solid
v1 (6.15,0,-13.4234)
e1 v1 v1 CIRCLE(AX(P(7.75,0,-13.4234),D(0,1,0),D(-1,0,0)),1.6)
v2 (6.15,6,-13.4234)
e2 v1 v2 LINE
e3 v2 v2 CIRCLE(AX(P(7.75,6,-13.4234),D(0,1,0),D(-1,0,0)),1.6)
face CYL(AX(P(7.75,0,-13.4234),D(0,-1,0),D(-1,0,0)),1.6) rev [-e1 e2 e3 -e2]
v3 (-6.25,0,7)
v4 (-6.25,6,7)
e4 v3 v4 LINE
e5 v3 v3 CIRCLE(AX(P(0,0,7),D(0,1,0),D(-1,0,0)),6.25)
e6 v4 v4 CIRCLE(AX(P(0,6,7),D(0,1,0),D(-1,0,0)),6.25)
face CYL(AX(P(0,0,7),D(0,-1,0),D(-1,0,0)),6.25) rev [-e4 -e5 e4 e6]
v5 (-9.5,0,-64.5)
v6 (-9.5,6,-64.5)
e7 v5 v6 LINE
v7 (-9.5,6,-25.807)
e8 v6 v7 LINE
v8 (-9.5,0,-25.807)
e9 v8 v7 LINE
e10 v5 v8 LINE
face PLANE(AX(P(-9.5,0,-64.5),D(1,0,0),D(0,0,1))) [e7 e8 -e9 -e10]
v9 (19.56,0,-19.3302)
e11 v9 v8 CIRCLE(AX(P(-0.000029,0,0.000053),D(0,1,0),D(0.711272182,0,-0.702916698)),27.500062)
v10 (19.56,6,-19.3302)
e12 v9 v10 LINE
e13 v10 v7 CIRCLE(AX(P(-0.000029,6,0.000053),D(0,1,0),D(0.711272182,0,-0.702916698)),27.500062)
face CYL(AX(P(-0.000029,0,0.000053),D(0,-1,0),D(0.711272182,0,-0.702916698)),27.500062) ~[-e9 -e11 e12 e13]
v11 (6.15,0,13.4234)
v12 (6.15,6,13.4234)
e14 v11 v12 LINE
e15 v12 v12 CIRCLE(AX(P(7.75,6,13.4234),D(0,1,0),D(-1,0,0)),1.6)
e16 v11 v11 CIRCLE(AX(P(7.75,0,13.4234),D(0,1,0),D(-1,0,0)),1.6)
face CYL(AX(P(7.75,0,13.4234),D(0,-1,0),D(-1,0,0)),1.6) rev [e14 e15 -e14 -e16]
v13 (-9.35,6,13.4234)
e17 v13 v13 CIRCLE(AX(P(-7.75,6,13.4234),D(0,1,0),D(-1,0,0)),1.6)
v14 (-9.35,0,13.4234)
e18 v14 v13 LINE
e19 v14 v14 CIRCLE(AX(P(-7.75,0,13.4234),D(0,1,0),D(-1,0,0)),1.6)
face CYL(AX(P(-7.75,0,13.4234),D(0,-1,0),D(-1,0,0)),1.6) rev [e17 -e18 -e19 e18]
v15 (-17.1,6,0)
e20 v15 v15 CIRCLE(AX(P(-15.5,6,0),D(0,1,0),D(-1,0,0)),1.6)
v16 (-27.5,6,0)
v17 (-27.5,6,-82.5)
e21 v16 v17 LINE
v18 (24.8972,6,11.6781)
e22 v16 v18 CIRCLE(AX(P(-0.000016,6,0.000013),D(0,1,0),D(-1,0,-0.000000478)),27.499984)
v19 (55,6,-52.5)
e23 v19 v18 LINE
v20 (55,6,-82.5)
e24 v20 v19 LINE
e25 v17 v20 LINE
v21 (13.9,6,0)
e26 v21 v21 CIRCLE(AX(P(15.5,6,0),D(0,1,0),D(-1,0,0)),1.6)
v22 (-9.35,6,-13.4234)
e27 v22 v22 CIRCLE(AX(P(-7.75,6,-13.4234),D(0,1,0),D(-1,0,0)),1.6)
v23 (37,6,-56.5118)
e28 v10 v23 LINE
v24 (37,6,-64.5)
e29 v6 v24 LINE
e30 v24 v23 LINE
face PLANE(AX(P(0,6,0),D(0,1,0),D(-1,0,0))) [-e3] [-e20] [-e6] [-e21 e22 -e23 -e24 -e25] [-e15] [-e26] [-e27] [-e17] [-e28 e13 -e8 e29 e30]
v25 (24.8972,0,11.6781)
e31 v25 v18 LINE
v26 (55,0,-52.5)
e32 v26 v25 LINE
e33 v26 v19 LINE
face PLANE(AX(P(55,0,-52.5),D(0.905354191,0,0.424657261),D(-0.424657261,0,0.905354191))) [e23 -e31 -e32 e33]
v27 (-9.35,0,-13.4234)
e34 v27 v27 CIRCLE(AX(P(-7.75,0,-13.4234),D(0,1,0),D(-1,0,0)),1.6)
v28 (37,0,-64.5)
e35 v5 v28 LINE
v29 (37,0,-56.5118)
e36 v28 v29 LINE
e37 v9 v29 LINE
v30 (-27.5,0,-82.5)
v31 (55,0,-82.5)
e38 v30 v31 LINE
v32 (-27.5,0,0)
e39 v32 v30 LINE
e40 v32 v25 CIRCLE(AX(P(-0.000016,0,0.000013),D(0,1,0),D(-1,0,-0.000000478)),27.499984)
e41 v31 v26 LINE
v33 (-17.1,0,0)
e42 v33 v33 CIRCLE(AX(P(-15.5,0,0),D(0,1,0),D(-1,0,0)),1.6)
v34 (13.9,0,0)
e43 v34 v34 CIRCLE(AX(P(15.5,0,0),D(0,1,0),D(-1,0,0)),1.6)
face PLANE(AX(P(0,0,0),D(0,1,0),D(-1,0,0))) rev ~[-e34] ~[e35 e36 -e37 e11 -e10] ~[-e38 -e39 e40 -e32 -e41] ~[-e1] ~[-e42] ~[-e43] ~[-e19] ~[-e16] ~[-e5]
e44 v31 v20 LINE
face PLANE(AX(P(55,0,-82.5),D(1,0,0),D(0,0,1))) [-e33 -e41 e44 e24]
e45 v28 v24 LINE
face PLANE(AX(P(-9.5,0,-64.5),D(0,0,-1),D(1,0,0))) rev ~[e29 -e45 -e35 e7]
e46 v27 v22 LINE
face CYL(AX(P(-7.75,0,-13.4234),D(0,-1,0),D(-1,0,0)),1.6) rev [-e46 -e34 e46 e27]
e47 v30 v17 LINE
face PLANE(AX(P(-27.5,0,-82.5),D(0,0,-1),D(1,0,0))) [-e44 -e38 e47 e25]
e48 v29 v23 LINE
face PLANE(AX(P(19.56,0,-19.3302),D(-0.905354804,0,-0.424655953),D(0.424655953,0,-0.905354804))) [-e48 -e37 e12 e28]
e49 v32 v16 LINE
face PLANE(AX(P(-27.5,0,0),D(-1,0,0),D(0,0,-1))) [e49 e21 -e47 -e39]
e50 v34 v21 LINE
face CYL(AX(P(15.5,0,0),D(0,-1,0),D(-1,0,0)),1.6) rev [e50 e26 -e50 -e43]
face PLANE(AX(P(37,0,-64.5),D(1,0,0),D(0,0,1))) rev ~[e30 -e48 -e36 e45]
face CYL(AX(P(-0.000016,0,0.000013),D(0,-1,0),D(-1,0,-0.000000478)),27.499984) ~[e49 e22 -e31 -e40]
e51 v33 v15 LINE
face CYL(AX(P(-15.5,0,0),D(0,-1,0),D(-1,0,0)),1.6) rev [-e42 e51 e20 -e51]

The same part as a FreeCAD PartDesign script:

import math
import FreeCAD as App
import Part
import Sketcher

doc = App.newDocument("Part")
params = doc.addObject("Spreadsheet::Sheet", "Params")
for row, (alias, value) in enumerate([
    ("sketch1_diameter", "3.2 mm"),
    ("sketch1_diameter2", "12.5 mm"),
    ("sketch1_radius", "27.5 mm"),
    ("sketch1_height", "30 mm"),
    ("sketch1_width", "82.5 mm"),
    ("pad1_length", "6 mm"),
], start=1):
    params.set(f"A{row}", alias)
    params.set(f"B{row}", "=" + value)
    params.setAlias(f"B{row}", alias)

body = doc.addObject("PartDesign::Body", "Body")

# Sketch on XZ plane
sketch1 = body.newObject("Sketcher::SketchObject", "Sketch")
sketch1.AttachmentSupport = (doc.getObject("XZ_Plane"), [""])
sketch1.MapMode = "FlatFace"
sketch1.addGeometry(Part.LineSegment(App.Vector(24.9, 11.7, 0), App.Vector(55, -52.5, 0)), False)
sketch1.addGeometry(Part.LineSegment(App.Vector(55, -52.5, 0), App.Vector(55, -82.5, 0)), False)
sketch1.addGeometry(Part.LineSegment(App.Vector(55, -82.5, 0), App.Vector(-27.5, -82.5, 0)), False)
sketch1.addGeometry(Part.LineSegment(App.Vector(-27.5, -82.5, 0), App.Vector(-27.5, 0, 0)), False)
sketch1.addGeometry(Part.ArcOfCircle(Part.Circle(App.Vector(0, 0, 0), App.Vector(0, 0, 1), 27.5), math.radians(25), math.radians(180)), False)
sketch1.addGeometry(Part.LineSegment(App.Vector(-9.5, -25.8, 0), App.Vector(-9.5, -64.5, 0)), False)
sketch1.addGeometry(Part.LineSegment(App.Vector(-9.5, -64.5, 0), App.Vector(37, -64.5, 0)), False)
sketch1.addGeometry(Part.LineSegment(App.Vector(37, -64.5, 0), App.Vector(37, -56.5, 0)), False)
sketch1.addGeometry(Part.LineSegment(App.Vector(37, -56.5, 0), App.Vector(19.6, -19.3, 0)), False)
sketch1.addGeometry(Part.ArcOfCircle(Part.Circle(App.Vector(0, 0, 0), App.Vector(0, 0, 1), 27.5), math.radians(-110), math.radians(-45)), False)
sketch1.addGeometry(Part.Circle(App.Vector(15.5, 0, 0), App.Vector(0, 0, 1), 1.6), False)
sketch1.addGeometry(Part.Circle(App.Vector(7.8, -13.4, 0), App.Vector(0, 0, 1), 1.6), False)
sketch1.addGeometry(Part.Circle(App.Vector(-7.8, -13.4, 0), App.Vector(0, 0, 1), 1.6), False)
sketch1.addGeometry(Part.Circle(App.Vector(7.8, 13.4, 0), App.Vector(0, 0, 1), 1.6), False)
sketch1.addGeometry(Part.Circle(App.Vector(0, 7, 0), App.Vector(0, 0, 1), 6.2), False)
sketch1.addGeometry(Part.Circle(App.Vector(-15.5, 0, 0), App.Vector(0, 0, 1), 1.6), False)
sketch1.addGeometry(Part.Circle(App.Vector(-7.8, 13.4, 0), App.Vector(0, 0, 1), 1.6), False)
sketch1.addConstraint(Sketcher.Constraint("Coincident", 0, 2, 1, 1))
sketch1.addConstraint(Sketcher.Constraint("Coincident", 1, 2, 2, 1))
sketch1.addConstraint(Sketcher.Constraint("Coincident", 2, 2, 3, 1))
sketch1.addConstraint(Sketcher.Constraint("Tangent", 3, 2, 4, 2))
sketch1.addConstraint(Sketcher.Constraint("Tangent", 4, 1, 0, 1))
sketch1.addConstraint(Sketcher.Constraint("Coincident", 5, 2, 6, 1))
sketch1.addConstraint(Sketcher.Constraint("Coincident", 6, 2, 7, 1))
sketch1.addConstraint(Sketcher.Constraint("Coincident", 7, 2, 8, 1))
sketch1.addConstraint(Sketcher.Constraint("Coincident", 8, 2, 9, 2))
sketch1.addConstraint(Sketcher.Constraint("Coincident", 9, 1, 5, 1))
sketch1.addConstraint(Sketcher.Constraint("Vertical", 1))
sketch1.addConstraint(Sketcher.Constraint("Horizontal", 2))
sketch1.addConstraint(Sketcher.Constraint("Vertical", 3))
sketch1.addConstraint(Sketcher.Constraint("Vertical", 5))
sketch1.addConstraint(Sketcher.Constraint("Horizontal", 6))
sketch1.addConstraint(Sketcher.Constraint("Vertical", 7))
sketch1.addConstraint(Sketcher.Constraint("Coincident", 4, 3, -1, 1))
sketch1.addConstraint(Sketcher.Constraint("Coincident", 9, 3, -1, 1))
sketch1.addConstraint(Sketcher.Constraint("Equal", 4, 9))
sketch1.addConstraint(Sketcher.Constraint("Equal", 10, 11))
sketch1.addConstraint(Sketcher.Constraint("Equal", 11, 12))
sketch1.addConstraint(Sketcher.Constraint("Equal", 12, 13))
sketch1.addConstraint(Sketcher.Constraint("Equal", 13, 15))
sketch1.addConstraint(Sketcher.Constraint("Equal", 15, 16))
sketch1.addConstraint(Sketcher.Constraint("Symmetric", 12, 3, 13, 3, -1, 1))
sketch1.addConstraint(Sketcher.Constraint("Symmetric", 10, 3, 15, 3, -1, 1))
sketch1.addConstraint(Sketcher.Constraint("Symmetric", 11, 3, 16, 3, -1, 1))
sketch1.addConstraint(Sketcher.Constraint("Symmetric", 11, 3, 12, 3, -2))
sketch1.addConstraint(Sketcher.Constraint("PointOnObject", 10, 3, -1))
sketch1.addConstraint(Sketcher.Constraint("PointOnObject", 14, 3, -2))
sketch1.addConstraint(Sketcher.Constraint("Parallel", 0, 8))
sketch1.addConstraint(Sketcher.Constraint("Equal", 2, 3))
sketch1.addConstraint(Sketcher.Constraint("Diameter", 10, 3.2))
sketch1.addConstraint(Sketcher.Constraint("Diameter", 14, 12.5))
sketch1.addConstraint(Sketcher.Constraint("Radius", 4, 27.5))
sketch1.addConstraint(Sketcher.Constraint("DistanceY", 1, 2, 1, 1, 30.0))
sketch1.addConstraint(Sketcher.Constraint("DistanceX", 2, 2, 2, 1, 82.5))
sketch1.addConstraint(Sketcher.Constraint("DistanceY", -1, 1, 14, 3, 7.0))
sketch1.addConstraint(Sketcher.Constraint("DistanceX", 2, 2, 5, 2, 18.0))
sketch1.addConstraint(Sketcher.Constraint("DistanceY", 2, 2, 5, 2, 18.0))
sketch1.addConstraint(Sketcher.Constraint("DistanceX", 6, 2, 0, 2, 18.0))
sketch1.addConstraint(Sketcher.Constraint("DistanceX", -1, 1, 10, 3, 15.5))
sketch1.addConstraint(Sketcher.Constraint("DistanceX", 12, 3, 11, 3, 15.5))
sketch1.addConstraint(Sketcher.Constraint("DistanceX", -1, 1, 8, 2, 19.56))
sketch1.addConstraint(Sketcher.Constraint("DistanceY", 11, 3, -1, 1, 13.4234))
sketch1.setExpression("Constraints[32]", "Params.sketch1_diameter")
sketch1.setExpression("Constraints[33]", "Params.sketch1_diameter2")
sketch1.setExpression("Constraints[34]", "Params.sketch1_radius")
sketch1.setExpression("Constraints[35]", "Params.sketch1_height")
sketch1.setExpression("Constraints[36]", "Params.sketch1_width")
pad1 = body.newObject("PartDesign::Pad", "Pad")
pad1.Profile = sketch1
pad1.setExpression("Length", "Params.pad1_length")
pad1.Reversed = True

doc.recompute()
